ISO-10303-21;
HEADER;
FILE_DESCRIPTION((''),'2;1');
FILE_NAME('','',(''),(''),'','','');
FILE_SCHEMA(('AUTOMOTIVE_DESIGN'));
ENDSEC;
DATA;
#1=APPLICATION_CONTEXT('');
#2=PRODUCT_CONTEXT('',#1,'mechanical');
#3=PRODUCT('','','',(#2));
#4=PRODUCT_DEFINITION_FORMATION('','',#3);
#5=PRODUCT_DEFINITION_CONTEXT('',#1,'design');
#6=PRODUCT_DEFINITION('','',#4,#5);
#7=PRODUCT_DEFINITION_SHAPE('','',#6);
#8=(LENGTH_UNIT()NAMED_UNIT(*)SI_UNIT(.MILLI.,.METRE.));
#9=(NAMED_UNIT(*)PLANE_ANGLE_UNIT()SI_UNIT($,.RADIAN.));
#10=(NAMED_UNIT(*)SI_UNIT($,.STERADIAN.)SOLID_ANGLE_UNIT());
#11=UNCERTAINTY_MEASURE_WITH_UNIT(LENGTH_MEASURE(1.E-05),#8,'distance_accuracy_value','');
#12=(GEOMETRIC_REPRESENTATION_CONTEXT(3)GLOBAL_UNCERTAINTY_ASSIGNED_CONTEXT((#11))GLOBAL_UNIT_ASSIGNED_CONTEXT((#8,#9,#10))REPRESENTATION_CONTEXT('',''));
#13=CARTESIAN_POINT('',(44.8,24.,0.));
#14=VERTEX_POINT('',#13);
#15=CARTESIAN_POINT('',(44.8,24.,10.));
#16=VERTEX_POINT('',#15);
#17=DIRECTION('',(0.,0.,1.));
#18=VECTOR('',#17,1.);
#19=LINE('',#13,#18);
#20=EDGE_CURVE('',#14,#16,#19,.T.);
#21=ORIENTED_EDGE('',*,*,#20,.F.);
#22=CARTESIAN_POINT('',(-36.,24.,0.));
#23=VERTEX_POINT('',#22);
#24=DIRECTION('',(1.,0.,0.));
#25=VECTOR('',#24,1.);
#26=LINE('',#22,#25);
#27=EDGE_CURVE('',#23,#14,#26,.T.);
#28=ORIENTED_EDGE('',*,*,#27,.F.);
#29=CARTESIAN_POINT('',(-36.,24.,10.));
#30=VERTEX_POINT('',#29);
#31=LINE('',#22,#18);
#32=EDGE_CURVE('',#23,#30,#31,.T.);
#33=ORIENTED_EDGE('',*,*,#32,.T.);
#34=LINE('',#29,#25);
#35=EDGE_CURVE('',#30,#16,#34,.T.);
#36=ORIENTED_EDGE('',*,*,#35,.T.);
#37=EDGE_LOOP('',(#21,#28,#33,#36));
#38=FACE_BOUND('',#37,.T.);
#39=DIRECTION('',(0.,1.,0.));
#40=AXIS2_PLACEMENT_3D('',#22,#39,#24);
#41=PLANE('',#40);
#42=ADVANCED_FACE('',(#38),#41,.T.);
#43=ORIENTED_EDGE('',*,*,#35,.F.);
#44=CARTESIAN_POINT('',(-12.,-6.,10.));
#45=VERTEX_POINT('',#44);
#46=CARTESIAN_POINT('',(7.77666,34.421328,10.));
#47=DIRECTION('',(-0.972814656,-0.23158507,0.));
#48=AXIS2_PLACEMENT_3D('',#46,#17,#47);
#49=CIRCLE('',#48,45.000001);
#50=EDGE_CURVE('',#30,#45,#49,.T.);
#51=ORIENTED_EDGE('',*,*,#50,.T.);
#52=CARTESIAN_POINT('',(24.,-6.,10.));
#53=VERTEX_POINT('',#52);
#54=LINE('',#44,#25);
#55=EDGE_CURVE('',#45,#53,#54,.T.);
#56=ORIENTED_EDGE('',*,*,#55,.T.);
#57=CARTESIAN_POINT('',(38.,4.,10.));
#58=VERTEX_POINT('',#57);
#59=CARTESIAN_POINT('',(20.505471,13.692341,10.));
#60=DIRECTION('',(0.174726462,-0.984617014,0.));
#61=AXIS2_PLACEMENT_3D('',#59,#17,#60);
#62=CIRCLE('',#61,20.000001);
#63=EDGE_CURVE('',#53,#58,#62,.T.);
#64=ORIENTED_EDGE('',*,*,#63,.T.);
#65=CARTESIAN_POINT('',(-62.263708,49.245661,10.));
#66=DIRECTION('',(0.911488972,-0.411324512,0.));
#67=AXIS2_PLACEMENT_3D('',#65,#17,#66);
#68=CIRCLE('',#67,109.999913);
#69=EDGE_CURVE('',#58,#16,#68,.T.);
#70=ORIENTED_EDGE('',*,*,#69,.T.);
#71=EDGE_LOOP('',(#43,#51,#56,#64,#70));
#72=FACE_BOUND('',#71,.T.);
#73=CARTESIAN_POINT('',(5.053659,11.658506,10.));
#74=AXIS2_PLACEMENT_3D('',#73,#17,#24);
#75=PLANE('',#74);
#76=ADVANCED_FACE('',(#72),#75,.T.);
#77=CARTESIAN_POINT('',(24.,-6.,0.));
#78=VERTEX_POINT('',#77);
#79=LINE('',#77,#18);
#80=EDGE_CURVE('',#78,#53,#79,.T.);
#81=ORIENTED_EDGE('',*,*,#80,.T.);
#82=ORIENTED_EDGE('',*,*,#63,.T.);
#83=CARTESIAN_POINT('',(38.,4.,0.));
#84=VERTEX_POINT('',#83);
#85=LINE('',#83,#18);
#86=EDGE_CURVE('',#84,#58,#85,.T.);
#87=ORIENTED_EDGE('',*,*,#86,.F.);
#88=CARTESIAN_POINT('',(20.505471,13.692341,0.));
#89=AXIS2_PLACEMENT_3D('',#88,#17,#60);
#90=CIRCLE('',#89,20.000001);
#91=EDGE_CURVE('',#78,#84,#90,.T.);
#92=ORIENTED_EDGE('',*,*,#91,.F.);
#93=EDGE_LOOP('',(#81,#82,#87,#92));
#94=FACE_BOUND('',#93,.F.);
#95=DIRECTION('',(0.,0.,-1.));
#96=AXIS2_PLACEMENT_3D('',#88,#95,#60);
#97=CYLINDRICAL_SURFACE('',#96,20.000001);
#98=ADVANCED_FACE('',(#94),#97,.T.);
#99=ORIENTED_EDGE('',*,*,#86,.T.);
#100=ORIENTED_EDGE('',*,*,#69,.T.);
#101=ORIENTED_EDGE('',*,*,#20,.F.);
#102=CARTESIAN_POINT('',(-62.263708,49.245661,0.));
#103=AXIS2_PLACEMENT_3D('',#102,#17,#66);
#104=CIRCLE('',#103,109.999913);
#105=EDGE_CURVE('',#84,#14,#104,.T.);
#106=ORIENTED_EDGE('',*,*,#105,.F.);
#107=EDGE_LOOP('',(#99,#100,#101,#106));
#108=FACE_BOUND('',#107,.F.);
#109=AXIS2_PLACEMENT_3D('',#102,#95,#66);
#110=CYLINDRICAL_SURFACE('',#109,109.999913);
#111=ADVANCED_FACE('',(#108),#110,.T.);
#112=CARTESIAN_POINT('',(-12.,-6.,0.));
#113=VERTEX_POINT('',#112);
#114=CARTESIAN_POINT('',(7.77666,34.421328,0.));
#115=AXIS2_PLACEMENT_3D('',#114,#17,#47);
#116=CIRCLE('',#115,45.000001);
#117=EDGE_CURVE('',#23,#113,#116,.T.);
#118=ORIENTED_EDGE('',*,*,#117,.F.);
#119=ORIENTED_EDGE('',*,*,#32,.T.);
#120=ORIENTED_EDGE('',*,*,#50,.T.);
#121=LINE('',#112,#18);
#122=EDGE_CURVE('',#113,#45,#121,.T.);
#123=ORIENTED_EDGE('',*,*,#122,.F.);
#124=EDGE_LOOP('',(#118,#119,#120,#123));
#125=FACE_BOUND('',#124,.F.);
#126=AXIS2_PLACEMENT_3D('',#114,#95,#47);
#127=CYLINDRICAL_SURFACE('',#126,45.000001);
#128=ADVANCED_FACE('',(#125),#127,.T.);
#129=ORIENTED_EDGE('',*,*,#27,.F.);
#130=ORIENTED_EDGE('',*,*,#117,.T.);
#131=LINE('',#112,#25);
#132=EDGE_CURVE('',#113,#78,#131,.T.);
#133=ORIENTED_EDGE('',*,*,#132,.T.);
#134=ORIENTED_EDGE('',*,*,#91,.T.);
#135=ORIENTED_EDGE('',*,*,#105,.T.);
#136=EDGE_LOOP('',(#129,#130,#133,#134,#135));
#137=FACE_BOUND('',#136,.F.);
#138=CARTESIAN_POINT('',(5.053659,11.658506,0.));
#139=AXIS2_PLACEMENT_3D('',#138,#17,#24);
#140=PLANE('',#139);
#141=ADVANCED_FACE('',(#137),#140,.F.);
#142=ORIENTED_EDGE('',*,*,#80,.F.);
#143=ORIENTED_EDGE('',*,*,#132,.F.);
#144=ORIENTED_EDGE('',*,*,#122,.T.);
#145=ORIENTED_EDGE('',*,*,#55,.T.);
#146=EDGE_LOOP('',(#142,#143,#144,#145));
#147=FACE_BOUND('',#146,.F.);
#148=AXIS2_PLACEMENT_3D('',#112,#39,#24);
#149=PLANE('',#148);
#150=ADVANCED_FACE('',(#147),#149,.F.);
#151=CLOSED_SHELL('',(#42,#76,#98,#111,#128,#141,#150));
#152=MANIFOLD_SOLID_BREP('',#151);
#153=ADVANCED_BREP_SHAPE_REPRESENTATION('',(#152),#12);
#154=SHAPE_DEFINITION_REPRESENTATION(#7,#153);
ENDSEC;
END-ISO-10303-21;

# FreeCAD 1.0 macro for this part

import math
import FreeCAD as App
import Part
import Sketcher
Q = App.Units.Quantity

doc = App.newDocument("Part")
body = doc.addObject("PartDesign::Body", "Body")

sketch1 = doc.addObject("Sketcher::SketchObject", "Sketch")
body.addObject(sketch1)
sketch1.AttachmentSupport = (doc.XY_Plane, [""])
sketch1.MapMode = "FlatFace"
sketch1.addGeometry([
    Part.ArcOfCircle(Part.Circle(App.Vector(21, 14, 0), App.Vector(0, 0, 1), 20), math.radians(-80), math.radians(-29)),
    Part.ArcOfCircle(Part.Circle(App.Vector(-62, 49, 0), App.Vector(0, 0, 1), 110), math.radians(-24.29), math.radians(-13.27)),
    Part.LineSegment(App.Vector(45, 24, 0), App.Vector(-36, 24, 0)),
    Part.ArcOfCircle(Part.Circle(App.Vector(8, 34, 0), App.Vector(0, 0, 1), 45), math.radians(-167), math.radians(-116)),
    Part.LineSegment(App.Vector(-12, -6, 0), App.Vector(24, -6, 0)),
], False)
sketch1.addConstraint([
    Sketcher.Constraint("Coincident", 0, 2, 1, 1),
    Sketcher.Constraint("Coincident", 1, 2, 2, 1),
    Sketcher.Constraint("Coincident", 2, 2, 3, 1),
    Sketcher.Constraint("Coincident", 3, 2, 4, 1),
    Sketcher.Constraint("Coincident", 4, 2, 0, 1),
    Sketcher.Constraint("Horizontal", 2),
    Sketcher.Constraint("Horizontal", 4),
    Sketcher.Constraint("Radius", 0, Q("20.000001 mm")),
    Sketcher.Constraint("Radius", 3, Q("45.000001 mm")),
    Sketcher.Constraint("DistanceX", 4, 1, 4, 2, Q("36 mm")),
    Sketcher.Constraint("DistanceX", 2, 2, 2, 1, Q("80.8 mm")),
    Sketcher.Constraint("DistanceX", -1, 1, 0, 2, Q("38 mm")),
    Sketcher.Constraint("DistanceY", -1, 1, 0, 2, Q("4 mm")),
    Sketcher.Constraint("DistanceY", -1, 1, 1, 2, Q("24 mm")),
    Sketcher.Constraint("DistanceX", 2, 2, -1, 1, Q("36 mm")),
    Sketcher.Constraint("DistanceX", 3, 2, -1, 1, Q("12 mm")),
    Sketcher.Constraint("DistanceY", 3, 2, -1, 1, Q("6 mm")),
    Sketcher.Constraint("Radius", 1, Q("109.999913 mm")),
])
pad1 = doc.addObject("PartDesign::Pad", "Pad")
body.addObject(pad1)
pad1.Profile = sketch1
pad1.Length = 10

doc.recompute()
